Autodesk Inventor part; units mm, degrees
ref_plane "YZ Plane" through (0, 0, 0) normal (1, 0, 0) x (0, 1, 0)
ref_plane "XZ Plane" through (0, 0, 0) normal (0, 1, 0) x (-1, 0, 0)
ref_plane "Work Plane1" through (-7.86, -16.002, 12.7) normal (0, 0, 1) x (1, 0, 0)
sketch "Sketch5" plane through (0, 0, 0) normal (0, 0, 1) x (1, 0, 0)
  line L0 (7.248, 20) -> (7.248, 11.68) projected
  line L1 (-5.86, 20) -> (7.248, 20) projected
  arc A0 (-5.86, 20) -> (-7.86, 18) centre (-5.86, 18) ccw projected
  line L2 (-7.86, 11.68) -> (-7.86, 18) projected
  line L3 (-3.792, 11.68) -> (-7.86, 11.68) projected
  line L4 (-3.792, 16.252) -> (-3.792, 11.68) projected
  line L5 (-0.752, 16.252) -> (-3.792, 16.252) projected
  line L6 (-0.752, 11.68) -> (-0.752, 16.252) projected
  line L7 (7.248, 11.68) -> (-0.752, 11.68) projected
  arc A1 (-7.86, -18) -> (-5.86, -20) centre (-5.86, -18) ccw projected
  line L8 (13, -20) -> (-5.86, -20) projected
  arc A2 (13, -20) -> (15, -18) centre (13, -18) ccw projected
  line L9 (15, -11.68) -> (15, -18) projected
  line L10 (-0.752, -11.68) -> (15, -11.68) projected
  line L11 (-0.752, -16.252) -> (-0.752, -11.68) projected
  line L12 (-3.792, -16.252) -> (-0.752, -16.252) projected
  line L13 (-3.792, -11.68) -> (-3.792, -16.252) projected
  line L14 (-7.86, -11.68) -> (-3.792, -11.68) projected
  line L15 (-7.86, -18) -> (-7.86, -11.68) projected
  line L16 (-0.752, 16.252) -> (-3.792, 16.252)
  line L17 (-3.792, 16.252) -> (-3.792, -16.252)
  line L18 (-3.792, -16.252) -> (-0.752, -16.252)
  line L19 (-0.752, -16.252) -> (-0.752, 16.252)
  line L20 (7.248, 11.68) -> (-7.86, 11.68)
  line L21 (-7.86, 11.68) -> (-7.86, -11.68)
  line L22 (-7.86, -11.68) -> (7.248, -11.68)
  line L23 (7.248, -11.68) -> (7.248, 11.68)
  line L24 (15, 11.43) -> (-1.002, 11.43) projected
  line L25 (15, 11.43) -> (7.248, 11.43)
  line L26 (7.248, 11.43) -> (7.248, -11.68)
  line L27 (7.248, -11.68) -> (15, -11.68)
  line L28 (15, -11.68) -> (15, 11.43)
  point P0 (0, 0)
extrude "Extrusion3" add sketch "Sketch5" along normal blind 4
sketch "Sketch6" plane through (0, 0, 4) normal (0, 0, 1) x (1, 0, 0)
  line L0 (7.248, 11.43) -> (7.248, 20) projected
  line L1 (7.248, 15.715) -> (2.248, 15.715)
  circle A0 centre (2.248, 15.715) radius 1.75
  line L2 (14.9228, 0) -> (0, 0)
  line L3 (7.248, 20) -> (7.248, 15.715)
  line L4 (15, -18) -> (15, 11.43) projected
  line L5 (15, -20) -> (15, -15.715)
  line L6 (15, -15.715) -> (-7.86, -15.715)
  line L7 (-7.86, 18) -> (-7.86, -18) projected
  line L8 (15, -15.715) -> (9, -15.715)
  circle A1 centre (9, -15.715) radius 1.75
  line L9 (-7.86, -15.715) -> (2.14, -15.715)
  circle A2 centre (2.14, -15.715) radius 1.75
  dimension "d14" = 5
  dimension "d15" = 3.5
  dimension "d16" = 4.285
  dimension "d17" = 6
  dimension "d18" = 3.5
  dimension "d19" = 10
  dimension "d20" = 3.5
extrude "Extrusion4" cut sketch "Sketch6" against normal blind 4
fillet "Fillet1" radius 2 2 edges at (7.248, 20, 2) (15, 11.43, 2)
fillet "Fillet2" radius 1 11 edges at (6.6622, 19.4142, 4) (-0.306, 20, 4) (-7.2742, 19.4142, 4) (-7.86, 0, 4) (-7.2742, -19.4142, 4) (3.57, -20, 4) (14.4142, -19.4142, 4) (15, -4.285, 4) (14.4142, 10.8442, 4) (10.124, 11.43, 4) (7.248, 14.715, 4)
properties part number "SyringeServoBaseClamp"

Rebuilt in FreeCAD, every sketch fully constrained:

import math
import FreeCAD as App
import Part
import Sketcher
Q = App.Units.Quantity


def edges_at(feature, points):
    """Names of the edges that pass closest to the given points."""
    edges = feature.Shape.Edges
    near = lambda p: min(range(len(edges)), key=lambda i: edges[i].distToShape(Part.Vertex(*p))[0])
    return sorted({f"Edge{near(p) + 1}" for p in points})

doc = App.newDocument("Part")
body = doc.addObject("PartDesign::Body", "Body")

# Sketch on XY plane
sketch1 = body.newObject("Sketcher::SketchObject", "Sketch")
sketch1.AttachmentSupport = (doc.getObject("XY_Plane"), [""])
sketch1.MapMode = "FlatFace"
sketch1.addGeometry(Part.LineSegment(App.Vector(7.2, 20, 0), App.Vector(-5.9, 20, 0)), False)
sketch1.addGeometry(Part.ArcOfCircle(Part.Circle(App.Vector(-5.9, 18, 0), App.Vector(0, 0, 1), 2), math.radians(90), math.radians(180)), False)
sketch1.addGeometry(Part.LineSegment(App.Vector(-7.9, 18, 0), App.Vector(-7.9, -18, 0)), False)
sketch1.addGeometry(Part.ArcOfCircle(Part.Circle(App.Vector(-5.9, -18, 0), App.Vector(0, 0, 1), 2), math.radians(180), math.radians(270)), False)
sketch1.addGeometry(Part.LineSegment(App.Vector(-5.9, -20, 0), App.Vector(13, -20, 0)), False)
sketch1.addGeometry(Part.ArcOfCircle(Part.Circle(App.Vector(13, -18, 0), App.Vector(0, 0, 1), 2), math.radians(-90), math.radians(0)), False)
sketch1.addGeometry(Part.LineSegment(App.Vector(15, -18, 0), App.Vector(15, 11.4, 0)), False)
sketch1.addGeometry(Part.LineSegment(App.Vector(15, 11.4, 0), App.Vector(7.2, 11.4, 0)), False)
sketch1.addGeometry(Part.LineSegment(App.Vector(7.2, 11.4, 0), App.Vector(7.2, 20, 0)), False)
sketch1.addConstraint(Sketcher.Constraint("Tangent", 0, 2, 1, 1))
sketch1.addConstraint(Sketcher.Constraint("Tangent", 1, 2, 2, 1))
sketch1.addConstraint(Sketcher.Constraint("Tangent", 2, 2, 3, 1))
sketch1.addConstraint(Sketcher.Constraint("Tangent", 3, 2, 4, 1))
sketch1.addConstraint(Sketcher.Constraint("Tangent", 4, 2, 5, 1))
sketch1.addConstraint(Sketcher.Constraint("Tangent", 5, 2, 6, 1))
sketch1.addConstraint(Sketcher.Constraint("Coincident", 6, 2, 7, 1))
sketch1.addConstraint(Sketcher.Constraint("Coincident", 7, 2, 8, 1))
sketch1.addConstraint(Sketcher.Constraint("Coincident", 8, 2, 0, 1))
sketch1.addConstraint(Sketcher.Constraint("Horizontal", 0))
sketch1.addConstraint(Sketcher.Constraint("Vertical", 2))
sketch1.addConstraint(Sketcher.Constraint("Horizontal", 4))
sketch1.addConstraint(Sketcher.Constraint("Vertical", 6))
sketch1.addConstraint(Sketcher.Constraint("Horizontal", 7))
sketch1.addConstraint(Sketcher.Constraint("Vertical", 8))
sketch1.addConstraint(Sketcher.Constraint("Equal", 1, 3))
sketch1.addConstraint(Sketcher.Constraint("Equal", 3, 5))
sketch1.addConstraint(Sketcher.Constraint("Radius", 1, Q("2 mm")))
sketch1.addConstraint(Sketcher.Constraint("DistanceY", 2, 2, 2, 1, Q("36 mm")))
sketch1.addConstraint(Sketcher.Constraint("DistanceY", -1, 1, 1, 3, Q("18 mm")))
sketch1.addConstraint(Sketcher.Constraint("DistanceX", -1, 1, 5, 3, Q("13 mm")))
sketch1.addConstraint(Sketcher.Constraint("DistanceX", 4, 1, 4, 2, Q("18.86 mm")))
sketch1.addConstraint(Sketcher.Constraint("DistanceY", 6, 1, 6, 2, Q("29.43 mm")))
sketch1.addConstraint(Sketcher.Constraint("DistanceX", 0, 2, 0, 1, Q("13.108 mm")))
pad1 = body.newObject("PartDesign::Pad", "Pad")
pad1.Profile = sketch1
pad1.Length = 4

# Sketch on XY plane
sketch2 = body.newObject("Sketcher::SketchObject", "Sketch001")
sketch2.AttachmentSupport = (doc.getObject("XY_Plane"), [""])
sketch2.MapMode = "FlatFace"
sketch2.AttachmentOffset = App.Placement(App.Vector(0, 0, 4), App.Rotation())
sketch2.addGeometry(Part.Circle(App.Vector(2.2, 15.7, 0), App.Vector(0, 0, 1), 1.8), False)
sketch2.addGeometry(Part.Circle(App.Vector(9, -15.7, 0), App.Vector(0, 0, 1), 1.8), False)
sketch2.addGeometry(Part.Circle(App.Vector(2.1, -15.7, 0), App.Vector(0, 0, 1), 1.8), False)
sketch2.addConstraint(Sketcher.Constraint("Equal", 0, 1))
sketch2.addConstraint(Sketcher.Constraint("Equal", 1, 2))
sketch2.addConstraint(Sketcher.Constraint("Horizontal", 1, 3, 2, 3))
sketch2.addConstraint(Sketcher.Constraint("Diameter", 0, Q("3.5 mm")))
sketch2.addConstraint(Sketcher.Constraint("DistanceX", -1, 1, 1, 3, Q("9 mm")))
sketch2.addConstraint(Sketcher.Constraint("DistanceX", -1, 1, 2, 3, Q("2.14 mm")))
sketch2.addConstraint(Sketcher.Constraint("DistanceY", 1, 3, 0, 3, Q("31.43 mm")))
sketch2.addConstraint(Sketcher.Constraint("DistanceX", -1, 1, 0, 3, Q("2.248 mm")))
sketch2.addConstraint(Sketcher.Constraint("DistanceY", -1, 1, 0, 3, Q("15.715 mm")))
pocket1 = body.newObject("PartDesign::Pocket", "Pocket")
pocket1.Profile = sketch2
pocket1.Length = 4
doc.recompute()

fillet = body.newObject("PartDesign::Fillet", "Fillet")
fillet.Base = (pocket1, edges_at(pocket1, [(7.248, 20, 2), (15, 11.43, 2)]))
fillet.Radius = 2
doc.recompute()

fillet2 = body.newObject("PartDesign::Fillet", "Fillet001")
fillet2.Base = (fillet, edges_at(fillet, [
    (6.662, 19.414, 4),
    (-0.306, 20, 4),
    (-7.274, 19.414, 4),
    (-7.86, 0, 4),
    (-7.274, -19.414, 4),
    (3.57, -20, 4),
    (14.414, -19.414, 4),
    (15, -4.285, 4),
    (14.414, 10.844, 4),
    (10.124, 11.43, 4),
    (7.248, 14.715, 4),
]))
fillet2.Radius = 1

doc.recompute()
